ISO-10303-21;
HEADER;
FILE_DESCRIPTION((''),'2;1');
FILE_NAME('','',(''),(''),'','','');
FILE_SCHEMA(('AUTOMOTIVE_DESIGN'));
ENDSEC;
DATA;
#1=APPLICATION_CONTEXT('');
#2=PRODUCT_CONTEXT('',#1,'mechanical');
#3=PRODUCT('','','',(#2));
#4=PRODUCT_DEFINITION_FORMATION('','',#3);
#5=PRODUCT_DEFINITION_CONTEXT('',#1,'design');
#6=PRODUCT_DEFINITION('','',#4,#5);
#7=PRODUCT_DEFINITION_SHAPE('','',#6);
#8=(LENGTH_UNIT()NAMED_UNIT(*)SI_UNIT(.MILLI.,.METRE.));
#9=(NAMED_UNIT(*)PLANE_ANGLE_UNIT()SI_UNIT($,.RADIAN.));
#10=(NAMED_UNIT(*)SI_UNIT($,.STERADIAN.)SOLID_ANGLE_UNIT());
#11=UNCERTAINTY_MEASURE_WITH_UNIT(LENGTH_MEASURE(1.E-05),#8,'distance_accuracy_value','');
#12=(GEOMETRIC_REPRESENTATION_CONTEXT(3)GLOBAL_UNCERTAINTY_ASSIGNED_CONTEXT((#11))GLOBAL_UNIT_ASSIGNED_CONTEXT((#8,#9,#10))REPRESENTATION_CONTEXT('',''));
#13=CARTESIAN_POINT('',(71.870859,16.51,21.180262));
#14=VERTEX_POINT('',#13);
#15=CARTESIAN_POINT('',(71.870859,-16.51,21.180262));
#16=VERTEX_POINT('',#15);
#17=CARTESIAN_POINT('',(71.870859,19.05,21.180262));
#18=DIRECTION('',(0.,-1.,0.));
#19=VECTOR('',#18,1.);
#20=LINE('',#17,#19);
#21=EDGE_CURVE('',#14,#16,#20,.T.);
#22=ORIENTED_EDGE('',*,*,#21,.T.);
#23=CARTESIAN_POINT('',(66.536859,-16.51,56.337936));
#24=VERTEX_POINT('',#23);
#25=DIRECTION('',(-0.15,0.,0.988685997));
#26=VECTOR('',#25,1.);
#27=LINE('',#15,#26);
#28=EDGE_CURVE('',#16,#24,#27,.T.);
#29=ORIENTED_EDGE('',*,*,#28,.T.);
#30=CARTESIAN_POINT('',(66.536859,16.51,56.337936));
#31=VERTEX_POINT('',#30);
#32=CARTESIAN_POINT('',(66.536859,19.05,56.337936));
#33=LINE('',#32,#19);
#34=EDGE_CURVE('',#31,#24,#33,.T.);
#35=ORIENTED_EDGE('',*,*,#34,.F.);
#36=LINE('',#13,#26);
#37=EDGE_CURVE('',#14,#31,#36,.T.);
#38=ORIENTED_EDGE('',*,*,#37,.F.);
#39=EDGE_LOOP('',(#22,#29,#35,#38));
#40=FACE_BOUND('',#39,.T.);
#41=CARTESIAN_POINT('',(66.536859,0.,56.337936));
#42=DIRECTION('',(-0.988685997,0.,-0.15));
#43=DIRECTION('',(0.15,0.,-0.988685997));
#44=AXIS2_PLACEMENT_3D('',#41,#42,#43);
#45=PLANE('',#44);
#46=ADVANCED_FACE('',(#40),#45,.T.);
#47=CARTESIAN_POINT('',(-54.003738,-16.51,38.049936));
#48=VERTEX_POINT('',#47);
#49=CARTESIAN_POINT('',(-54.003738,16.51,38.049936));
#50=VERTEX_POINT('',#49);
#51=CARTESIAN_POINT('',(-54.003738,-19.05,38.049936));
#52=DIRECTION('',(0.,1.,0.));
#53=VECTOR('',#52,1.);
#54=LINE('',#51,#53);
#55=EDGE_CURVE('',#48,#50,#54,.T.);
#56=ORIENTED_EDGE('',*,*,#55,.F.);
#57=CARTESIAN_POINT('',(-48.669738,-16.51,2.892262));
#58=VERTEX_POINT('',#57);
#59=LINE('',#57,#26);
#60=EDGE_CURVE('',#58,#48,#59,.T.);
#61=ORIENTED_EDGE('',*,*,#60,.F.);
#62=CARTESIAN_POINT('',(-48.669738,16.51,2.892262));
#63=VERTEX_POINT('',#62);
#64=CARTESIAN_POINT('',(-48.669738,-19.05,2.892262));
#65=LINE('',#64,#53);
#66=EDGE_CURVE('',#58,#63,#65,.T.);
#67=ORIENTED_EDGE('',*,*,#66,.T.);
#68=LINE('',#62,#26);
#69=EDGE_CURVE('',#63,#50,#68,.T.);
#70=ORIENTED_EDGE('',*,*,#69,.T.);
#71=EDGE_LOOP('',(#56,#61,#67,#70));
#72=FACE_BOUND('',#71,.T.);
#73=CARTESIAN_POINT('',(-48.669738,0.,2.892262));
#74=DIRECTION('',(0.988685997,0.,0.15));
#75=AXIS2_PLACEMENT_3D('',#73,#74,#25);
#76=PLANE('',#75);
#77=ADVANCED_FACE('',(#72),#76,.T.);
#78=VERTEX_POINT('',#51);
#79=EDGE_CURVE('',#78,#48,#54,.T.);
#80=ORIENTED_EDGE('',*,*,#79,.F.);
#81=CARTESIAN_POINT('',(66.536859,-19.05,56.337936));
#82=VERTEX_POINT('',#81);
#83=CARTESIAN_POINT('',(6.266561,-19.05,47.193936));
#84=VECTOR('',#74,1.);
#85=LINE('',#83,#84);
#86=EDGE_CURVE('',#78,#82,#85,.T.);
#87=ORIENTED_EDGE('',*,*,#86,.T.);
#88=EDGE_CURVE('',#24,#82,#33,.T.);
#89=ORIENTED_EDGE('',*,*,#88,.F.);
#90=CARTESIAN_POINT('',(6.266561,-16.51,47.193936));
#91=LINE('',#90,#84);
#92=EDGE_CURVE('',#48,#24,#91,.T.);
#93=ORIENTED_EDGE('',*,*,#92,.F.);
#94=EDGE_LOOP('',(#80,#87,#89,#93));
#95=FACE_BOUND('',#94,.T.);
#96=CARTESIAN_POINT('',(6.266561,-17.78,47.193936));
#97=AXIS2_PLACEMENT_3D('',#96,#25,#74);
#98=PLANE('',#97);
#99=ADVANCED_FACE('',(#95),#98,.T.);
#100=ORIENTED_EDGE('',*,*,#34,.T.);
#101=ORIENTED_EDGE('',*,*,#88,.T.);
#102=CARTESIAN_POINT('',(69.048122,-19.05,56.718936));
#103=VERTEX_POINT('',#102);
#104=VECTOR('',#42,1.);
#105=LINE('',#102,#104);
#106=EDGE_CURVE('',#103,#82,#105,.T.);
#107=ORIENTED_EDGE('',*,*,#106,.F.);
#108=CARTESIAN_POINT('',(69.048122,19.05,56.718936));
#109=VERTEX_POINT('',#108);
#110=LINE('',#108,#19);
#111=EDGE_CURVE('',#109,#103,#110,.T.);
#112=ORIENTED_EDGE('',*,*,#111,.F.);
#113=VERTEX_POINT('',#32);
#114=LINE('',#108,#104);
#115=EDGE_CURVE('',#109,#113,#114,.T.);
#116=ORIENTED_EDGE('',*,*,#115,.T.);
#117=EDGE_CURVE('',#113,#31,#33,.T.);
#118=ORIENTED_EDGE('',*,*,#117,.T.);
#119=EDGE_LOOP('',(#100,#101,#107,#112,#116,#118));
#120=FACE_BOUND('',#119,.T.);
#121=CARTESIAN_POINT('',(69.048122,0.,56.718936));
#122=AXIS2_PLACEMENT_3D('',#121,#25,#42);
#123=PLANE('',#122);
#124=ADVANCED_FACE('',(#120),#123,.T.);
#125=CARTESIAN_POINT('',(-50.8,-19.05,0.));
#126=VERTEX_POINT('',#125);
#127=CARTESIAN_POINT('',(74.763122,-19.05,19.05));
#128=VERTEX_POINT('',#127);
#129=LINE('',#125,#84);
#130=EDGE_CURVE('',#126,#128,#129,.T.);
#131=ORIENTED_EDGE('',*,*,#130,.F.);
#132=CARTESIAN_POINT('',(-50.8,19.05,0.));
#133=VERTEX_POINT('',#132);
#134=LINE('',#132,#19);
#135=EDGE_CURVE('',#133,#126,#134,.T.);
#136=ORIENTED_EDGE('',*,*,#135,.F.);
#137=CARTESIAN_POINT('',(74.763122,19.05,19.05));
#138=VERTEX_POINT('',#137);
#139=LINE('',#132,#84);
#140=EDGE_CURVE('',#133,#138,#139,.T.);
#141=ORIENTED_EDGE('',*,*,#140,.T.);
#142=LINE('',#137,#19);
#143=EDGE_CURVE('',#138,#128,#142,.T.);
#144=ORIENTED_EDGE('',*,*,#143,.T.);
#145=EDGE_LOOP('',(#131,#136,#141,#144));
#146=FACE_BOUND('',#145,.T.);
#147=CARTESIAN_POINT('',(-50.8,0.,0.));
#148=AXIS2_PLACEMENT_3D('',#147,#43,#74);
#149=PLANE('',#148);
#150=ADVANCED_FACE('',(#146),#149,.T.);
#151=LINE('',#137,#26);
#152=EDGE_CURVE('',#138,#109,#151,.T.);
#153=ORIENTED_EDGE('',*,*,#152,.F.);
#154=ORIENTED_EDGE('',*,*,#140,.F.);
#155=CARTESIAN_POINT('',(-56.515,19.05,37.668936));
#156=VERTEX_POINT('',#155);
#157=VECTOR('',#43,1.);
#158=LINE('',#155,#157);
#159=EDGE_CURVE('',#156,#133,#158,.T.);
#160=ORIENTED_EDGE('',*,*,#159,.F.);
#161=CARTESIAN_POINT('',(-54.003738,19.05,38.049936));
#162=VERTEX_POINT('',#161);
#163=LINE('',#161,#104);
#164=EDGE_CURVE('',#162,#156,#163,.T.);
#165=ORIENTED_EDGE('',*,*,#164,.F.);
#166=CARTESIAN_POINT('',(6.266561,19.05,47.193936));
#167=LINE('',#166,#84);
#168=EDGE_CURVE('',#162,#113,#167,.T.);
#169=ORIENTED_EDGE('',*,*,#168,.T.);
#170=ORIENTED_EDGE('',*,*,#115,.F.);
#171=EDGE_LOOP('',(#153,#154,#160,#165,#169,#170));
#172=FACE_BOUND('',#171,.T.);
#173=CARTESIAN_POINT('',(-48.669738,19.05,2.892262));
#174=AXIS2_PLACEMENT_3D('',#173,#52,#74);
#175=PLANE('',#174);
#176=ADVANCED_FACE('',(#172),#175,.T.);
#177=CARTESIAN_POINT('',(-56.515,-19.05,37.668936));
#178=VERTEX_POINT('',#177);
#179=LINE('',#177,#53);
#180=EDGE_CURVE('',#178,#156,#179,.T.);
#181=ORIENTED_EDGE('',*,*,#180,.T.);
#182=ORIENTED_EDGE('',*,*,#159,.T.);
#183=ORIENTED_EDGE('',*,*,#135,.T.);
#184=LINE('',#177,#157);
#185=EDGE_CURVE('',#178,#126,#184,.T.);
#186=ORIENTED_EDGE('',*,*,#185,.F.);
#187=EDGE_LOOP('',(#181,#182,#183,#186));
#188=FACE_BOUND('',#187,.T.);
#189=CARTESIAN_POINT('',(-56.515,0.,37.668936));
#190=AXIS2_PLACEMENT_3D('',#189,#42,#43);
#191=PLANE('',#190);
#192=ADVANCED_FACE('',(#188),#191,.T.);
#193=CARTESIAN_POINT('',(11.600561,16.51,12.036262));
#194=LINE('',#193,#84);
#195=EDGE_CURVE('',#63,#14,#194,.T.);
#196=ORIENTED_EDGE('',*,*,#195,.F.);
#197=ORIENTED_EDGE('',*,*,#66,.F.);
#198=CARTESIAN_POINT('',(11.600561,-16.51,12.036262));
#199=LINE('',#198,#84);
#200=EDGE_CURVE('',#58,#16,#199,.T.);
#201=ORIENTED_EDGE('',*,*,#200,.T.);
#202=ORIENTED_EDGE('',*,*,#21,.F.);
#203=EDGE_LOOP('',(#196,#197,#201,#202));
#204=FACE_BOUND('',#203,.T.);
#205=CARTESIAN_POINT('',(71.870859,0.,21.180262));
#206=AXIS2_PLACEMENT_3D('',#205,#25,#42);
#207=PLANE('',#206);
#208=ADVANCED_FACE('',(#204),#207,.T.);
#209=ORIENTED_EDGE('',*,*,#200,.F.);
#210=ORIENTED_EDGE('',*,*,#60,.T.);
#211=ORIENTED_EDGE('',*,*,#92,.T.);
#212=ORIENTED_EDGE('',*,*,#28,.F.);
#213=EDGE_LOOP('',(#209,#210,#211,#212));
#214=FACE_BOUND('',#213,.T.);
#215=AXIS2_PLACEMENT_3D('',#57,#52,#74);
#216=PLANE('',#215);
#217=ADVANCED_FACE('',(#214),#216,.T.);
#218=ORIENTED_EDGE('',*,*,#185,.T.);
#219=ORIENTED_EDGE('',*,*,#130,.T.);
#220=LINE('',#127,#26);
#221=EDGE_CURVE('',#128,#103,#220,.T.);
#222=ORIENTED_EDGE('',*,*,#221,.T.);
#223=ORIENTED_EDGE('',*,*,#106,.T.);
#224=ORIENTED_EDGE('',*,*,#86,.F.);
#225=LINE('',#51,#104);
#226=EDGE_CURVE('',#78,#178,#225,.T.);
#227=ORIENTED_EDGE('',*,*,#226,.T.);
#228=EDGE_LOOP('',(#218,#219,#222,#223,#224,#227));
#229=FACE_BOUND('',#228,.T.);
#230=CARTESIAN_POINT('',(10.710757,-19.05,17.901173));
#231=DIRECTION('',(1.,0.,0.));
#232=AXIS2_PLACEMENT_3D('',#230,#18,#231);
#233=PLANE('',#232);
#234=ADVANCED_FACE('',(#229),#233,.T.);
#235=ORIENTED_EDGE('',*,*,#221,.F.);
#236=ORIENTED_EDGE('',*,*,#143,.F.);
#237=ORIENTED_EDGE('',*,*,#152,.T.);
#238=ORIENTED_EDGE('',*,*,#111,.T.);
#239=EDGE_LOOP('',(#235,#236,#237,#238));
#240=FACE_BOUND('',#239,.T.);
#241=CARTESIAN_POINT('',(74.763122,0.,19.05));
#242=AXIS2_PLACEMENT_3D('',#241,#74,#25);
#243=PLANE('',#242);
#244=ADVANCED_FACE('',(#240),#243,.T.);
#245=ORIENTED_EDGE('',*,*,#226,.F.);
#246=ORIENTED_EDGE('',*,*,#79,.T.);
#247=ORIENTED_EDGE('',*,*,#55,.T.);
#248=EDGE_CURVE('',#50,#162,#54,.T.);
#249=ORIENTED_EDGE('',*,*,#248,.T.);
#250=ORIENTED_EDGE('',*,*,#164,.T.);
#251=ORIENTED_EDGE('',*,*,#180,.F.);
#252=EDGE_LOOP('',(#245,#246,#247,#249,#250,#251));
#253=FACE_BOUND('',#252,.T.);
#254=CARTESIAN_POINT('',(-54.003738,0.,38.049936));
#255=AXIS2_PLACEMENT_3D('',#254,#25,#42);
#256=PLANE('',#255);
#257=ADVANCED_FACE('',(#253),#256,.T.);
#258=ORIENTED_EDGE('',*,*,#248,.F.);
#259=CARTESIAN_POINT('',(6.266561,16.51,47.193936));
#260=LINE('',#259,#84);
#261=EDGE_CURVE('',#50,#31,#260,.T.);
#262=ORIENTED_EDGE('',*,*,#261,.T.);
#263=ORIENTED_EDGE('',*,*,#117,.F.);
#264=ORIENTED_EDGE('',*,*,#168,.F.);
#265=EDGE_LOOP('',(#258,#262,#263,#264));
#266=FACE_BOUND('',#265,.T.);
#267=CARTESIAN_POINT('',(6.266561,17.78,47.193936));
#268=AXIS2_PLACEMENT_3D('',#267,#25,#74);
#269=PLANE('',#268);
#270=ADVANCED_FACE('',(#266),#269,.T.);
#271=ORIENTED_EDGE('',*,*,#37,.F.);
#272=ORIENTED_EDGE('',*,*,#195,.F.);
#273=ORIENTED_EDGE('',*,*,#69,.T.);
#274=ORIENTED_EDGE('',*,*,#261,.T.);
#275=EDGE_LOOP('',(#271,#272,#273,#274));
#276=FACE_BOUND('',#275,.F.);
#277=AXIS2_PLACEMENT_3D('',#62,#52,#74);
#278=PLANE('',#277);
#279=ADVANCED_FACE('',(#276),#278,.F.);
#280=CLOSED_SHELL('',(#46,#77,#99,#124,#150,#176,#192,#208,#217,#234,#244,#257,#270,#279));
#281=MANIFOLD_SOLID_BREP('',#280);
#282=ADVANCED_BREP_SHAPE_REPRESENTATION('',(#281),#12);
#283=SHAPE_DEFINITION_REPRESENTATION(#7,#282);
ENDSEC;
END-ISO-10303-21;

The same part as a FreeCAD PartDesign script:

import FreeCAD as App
import Part
import Sketcher

V = App.Vector
Q = App.Units.Quantity


def add_polygon(sketch, points):
    """Adds a closed chain of lines whose ends are joined by coincident constraints."""
    first, n = sketch.GeometryCount, len(points)
    for a, b in zip(points, points[1:] + points[:1]):
        sketch.addGeometry(Part.LineSegment(App.Vector(*a, 0), App.Vector(*b, 0)), False)
    for i in range(n):
        sketch.addConstraint(Sketcher.Constraint("Coincident", first + i, 2, first + (i + 1) % n, 1))

doc = App.newDocument("Part")
body = doc.addObject("PartDesign::Body", "Body")

sketch1 = body.newObject("Sketcher::SketchObject", "Sketch")
sketch1.AttachmentSupport = (doc.getObject("XZ_Plane"), [""])
sketch1.MapMode = "FlatFace"
add_polygon(sketch1, [(-56.5, 37.7), (-50.8, 0), (74.8, 19.1), (69, 56.7), (66.5, 56.3), (71.9, 21.2), (-48.7, 2.9), (-54, 38)])
sketch1.addConstraint(Sketcher.Constraint("PointOnObject", 0, 2, -1))
sketch1.addConstraint(Sketcher.Constraint("Perpendicular", 0, 1))
sketch1.addConstraint(Sketcher.Constraint("Perpendicular", 1, 2))
sketch1.addConstraint(Sketcher.Constraint("Perpendicular", 2, 3))
sketch1.addConstraint(Sketcher.Constraint("Perpendicular", 3, 4))
sketch1.addConstraint(Sketcher.Constraint("Perpendicular", 4, 5))
sketch1.addConstraint(Sketcher.Constraint("Perpendicular", 5, 6))
sketch1.addConstraint(Sketcher.Constraint("Perpendicular", 6, 7))
sketch1.addConstraint(Sketcher.Constraint("Equal", 0, 2))
sketch1.addConstraint(Sketcher.Constraint("Equal", 3, 7))
sketch1.addConstraint(Sketcher.Constraint("Distance", 1, Q("5 in")))
sketch1.addConstraint(Sketcher.Constraint("DistanceX", 0, 2, -1, 1, Q("2 in")))
sketch1.addConstraint(Sketcher.Constraint("Distance", 0, Q("1.5 in")))
sketch1.addConstraint(Sketcher.Constraint("Distance", 3, Q("0.1 in")))
sketch1.addConstraint(Sketcher.Constraint("Distance", 4, Q("1.4 in")))
sketch1.addConstraint(Sketcher.Constraint("DistanceY", -1, 1, 1, 2, Q("0.75 in")))
pad1 = body.newObject("PartDesign::Pad", "Pad")
pad1.Profile = sketch1
pad1.Length = Q("1.5 in")
pad1.Midplane = True

sketch2 = body.newObject("Sketcher::SketchObject", "Sketch001")
sketch2.Placement = App.Placement(V(-1.524, 0, 10.04505), App.Rotation(V(0.988685997, 0, 0.15), V(0, 1.000000001, 0), V(-0.15, 0, 0.988685997), "ZXY"))
add_polygon(sketch2, [(-47.7, 19.1), (-47.7, 16.5), (74.2, 16.5), (74.2, 19.1)])
add_polygon(sketch2, [(-47.7, -16.5), (-47.7, -19.1), (74.2, -19.1), (74.2, -16.5)])
sketch2.addConstraint(Sketcher.Constraint("Vertical", 0))
sketch2.addConstraint(Sketcher.Constraint("Horizontal", 1))
sketch2.addConstraint(Sketcher.Constraint("Vertical", 2))
sketch2.addConstraint(Sketcher.Constraint("Horizontal", 3))
sketch2.addConstraint(Sketcher.Constraint("Vertical", 4))
sketch2.addConstraint(Sketcher.Constraint("Horizontal", 5))
sketch2.addConstraint(Sketcher.Constraint("Vertical", 6))
sketch2.addConstraint(Sketcher.Constraint("Horizontal", 7))
sketch2.addConstraint(Sketcher.Constraint("Symmetric", 3, 2, 4, 2, -1))
sketch2.addConstraint(Sketcher.Constraint("Symmetric", 1, 2, 6, 2, -1))
sketch2.addConstraint(Sketcher.Constraint("DistanceX", 1, 1, 1, 2, Q("4.8 in")))
sketch2.addConstraint(Sketcher.Constraint("DistanceY", 0, 2, 0, 1, Q("0.1 in")))
sketch2.addConstraint(Sketcher.Constraint("DistanceY", 4, 2, 0, 2, Q("1.4 in")))
sketch2.addConstraint(Sketcher.Constraint("DistanceX", 0, 2, -1, 1, Q("47.685249 mm")))
pad2 = body.newObject("PartDesign::Pad", "Pad001")
pad2.Profile = sketch2
pad2.Length = Q("1.4 in")

doc.recompute()
